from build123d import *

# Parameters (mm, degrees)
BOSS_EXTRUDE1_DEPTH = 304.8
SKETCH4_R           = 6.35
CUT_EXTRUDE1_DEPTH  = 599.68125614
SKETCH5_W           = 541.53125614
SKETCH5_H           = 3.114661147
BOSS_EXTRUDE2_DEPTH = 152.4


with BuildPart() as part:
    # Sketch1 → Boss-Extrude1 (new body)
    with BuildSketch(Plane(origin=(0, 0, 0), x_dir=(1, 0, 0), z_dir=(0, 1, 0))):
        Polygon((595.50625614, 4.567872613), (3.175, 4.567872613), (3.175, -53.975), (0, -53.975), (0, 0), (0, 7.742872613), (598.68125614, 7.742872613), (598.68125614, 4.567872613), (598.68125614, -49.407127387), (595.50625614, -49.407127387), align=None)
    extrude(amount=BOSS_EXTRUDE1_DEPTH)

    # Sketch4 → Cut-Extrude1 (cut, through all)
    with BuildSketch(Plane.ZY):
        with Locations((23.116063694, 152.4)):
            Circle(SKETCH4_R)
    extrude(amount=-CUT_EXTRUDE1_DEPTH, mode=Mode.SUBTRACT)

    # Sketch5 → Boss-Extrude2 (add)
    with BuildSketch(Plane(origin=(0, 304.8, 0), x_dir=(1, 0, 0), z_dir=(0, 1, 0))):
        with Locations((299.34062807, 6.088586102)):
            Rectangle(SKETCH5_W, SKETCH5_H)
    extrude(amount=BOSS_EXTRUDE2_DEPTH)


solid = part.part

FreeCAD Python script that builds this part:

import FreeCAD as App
import Part
import Sketcher

V = App.Vector
Q = App.Units.Quantity


def add_polygon(sketch, points):
    """Adds a closed chain of lines whose ends are joined by coincident constraints."""
    first, n = sketch.GeometryCount, len(points)
    for a, b in zip(points, points[1:] + points[:1]):
        sketch.addGeometry(Part.LineSegment(App.Vector(*a, 0), App.Vector(*b, 0)), False)
    for i in range(n):
        sketch.addConstraint(Sketcher.Constraint("Coincident", first + i, 2, first + (i + 1) % n, 1))

doc = App.newDocument("Part")
body = doc.addObject("PartDesign::Body", "Body")

# Sketch on XZ plane
sketch1 = body.newObject("Sketcher::SketchObject", "Sketch")
sketch1.AttachmentSupport = (doc.getObject("XZ_Plane"), [""])
sketch1.MapMode = "FlatFace"
add_polygon(sketch1, [(3.2, -4.6), (595.5, -4.6), (595.5, 49.4), (598.7, 49.4), (598.7, -7.7), (0, -7.7), (0, 54), (3.2, 54)])  # lines 0-7
sketch1.addConstraint(Sketcher.Constraint("Horizontal", 0))
sketch1.addConstraint(Sketcher.Constraint("Vertical", 1))
sketch1.addConstraint(Sketcher.Constraint("Horizontal", 2))
sketch1.addConstraint(Sketcher.Constraint("Vertical", 3))
sketch1.addConstraint(Sketcher.Constraint("Horizontal", 4))
sketch1.addConstraint(Sketcher.Constraint("Vertical", 5))
sketch1.addConstraint(Sketcher.Constraint("Horizontal", 6))
sketch1.addConstraint(Sketcher.Constraint("Vertical", 7))
sketch1.addConstraint(Sketcher.Constraint("PointOnObject", 4, 2, -2))
sketch1.addConstraint(Sketcher.Constraint("Equal", 2, 6))
sketch1.addConstraint(Sketcher.Constraint("DistanceY", 3, 2, 3, 1, Q("2.25 in")))
sketch1.addConstraint(Sketcher.Constraint("DistanceX", 2, 1, 2, 2, Q("0.125 in")))
sketch1.addConstraint(Sketcher.Constraint("DistanceY", 1, 1, 1, 2, Q("2.125 in")))
sketch1.addConstraint(Sketcher.Constraint("DistanceY", -1, 1, 5, 2, Q("2.125 in")))
sketch1.addConstraint(Sketcher.Constraint("DistanceX", 0, 1, 0, 2, Q("592.331256 mm")))
sketch1.addConstraint(Sketcher.Constraint("DistanceY", 5, 1, 5, 2, Q("61.717873 mm")))
pad1 = body.newObject("PartDesign::Pad", "Pad")
pad1.Profile = sketch1
pad1.Length = Q("12 in")
pad1.Reversed = True

# Sketch on YZ plane
sketch2 = body.newObject("Sketcher::SketchObject", "Sketch001")
sketch2.AttachmentSupport = (doc.getObject("YZ_Plane"), [""])
sketch2.MapMode = "FlatFace"
sketch2.addGeometry(Part.Circle(V(152, 23, 0), V(0, 0, 1), 6), False)
sketch2.addConstraint(Sketcher.Constraint("Diameter", 0, Q("0.5 in")))
sketch2.addConstraint(Sketcher.Constraint("DistanceX", -1, 1, 0, 3, Q("6 in")))
sketch2.addConstraint(Sketcher.Constraint("DistanceY", -1, 1, 0, 3, Q("23.116064 mm")))
pocket1 = body.newObject("PartDesign::Pocket", "Pocket")
pocket1.Profile = sketch2
pocket1.Type = "ThroughAll"
pocket1.Reversed = True

# Sketch on XZ plane
sketch3 = body.newObject("Sketcher::SketchObject", "Sketch002")
sketch3.AttachmentSupport = (doc.getObject("XZ_Plane"), [""])
sketch3.MapMode = "FlatFace"
sketch3.AttachmentOffset = App.Placement(V(0, 0, -12 * 25.4), App.Rotation())
add_polygon(sketch3, [(28.6, -7.6), (28.6, -4.5), (570.1, -4.5), (570.1, -7.6)])  # lines 0-3
sketch3.addConstraint(Sketcher.Constraint("Vertical", 0))
sketch3.addConstraint(Sketcher.Constraint("Horizontal", 1))
sketch3.addConstraint(Sketcher.Constraint("Vertical", 2))
sketch3.addConstraint(Sketcher.Constraint("Horizontal", 3))
sketch3.addConstraint(Sketcher.Constraint("DistanceX", -1, 1, 0, 2, Q("1.125 in")))
sketch3.addConstraint(Sketcher.Constraint("DistanceY", 0, 1, 0, 2, Q("3.114661 mm")))
sketch3.addConstraint(Sketcher.Constraint("DistanceX", 1, 1, 1, 2, Q("541.531256 mm")))
sketch3.addConstraint(Sketcher.Constraint("DistanceY", 0, 2, -1, 1, Q("4.531256 mm")))
pad2 = body.newObject("PartDesign::Pad", "Pad001")
pad2.Profile = sketch3
pad2.Length = Q("6 in")
pad2.Reversed = True

doc.recompute()
